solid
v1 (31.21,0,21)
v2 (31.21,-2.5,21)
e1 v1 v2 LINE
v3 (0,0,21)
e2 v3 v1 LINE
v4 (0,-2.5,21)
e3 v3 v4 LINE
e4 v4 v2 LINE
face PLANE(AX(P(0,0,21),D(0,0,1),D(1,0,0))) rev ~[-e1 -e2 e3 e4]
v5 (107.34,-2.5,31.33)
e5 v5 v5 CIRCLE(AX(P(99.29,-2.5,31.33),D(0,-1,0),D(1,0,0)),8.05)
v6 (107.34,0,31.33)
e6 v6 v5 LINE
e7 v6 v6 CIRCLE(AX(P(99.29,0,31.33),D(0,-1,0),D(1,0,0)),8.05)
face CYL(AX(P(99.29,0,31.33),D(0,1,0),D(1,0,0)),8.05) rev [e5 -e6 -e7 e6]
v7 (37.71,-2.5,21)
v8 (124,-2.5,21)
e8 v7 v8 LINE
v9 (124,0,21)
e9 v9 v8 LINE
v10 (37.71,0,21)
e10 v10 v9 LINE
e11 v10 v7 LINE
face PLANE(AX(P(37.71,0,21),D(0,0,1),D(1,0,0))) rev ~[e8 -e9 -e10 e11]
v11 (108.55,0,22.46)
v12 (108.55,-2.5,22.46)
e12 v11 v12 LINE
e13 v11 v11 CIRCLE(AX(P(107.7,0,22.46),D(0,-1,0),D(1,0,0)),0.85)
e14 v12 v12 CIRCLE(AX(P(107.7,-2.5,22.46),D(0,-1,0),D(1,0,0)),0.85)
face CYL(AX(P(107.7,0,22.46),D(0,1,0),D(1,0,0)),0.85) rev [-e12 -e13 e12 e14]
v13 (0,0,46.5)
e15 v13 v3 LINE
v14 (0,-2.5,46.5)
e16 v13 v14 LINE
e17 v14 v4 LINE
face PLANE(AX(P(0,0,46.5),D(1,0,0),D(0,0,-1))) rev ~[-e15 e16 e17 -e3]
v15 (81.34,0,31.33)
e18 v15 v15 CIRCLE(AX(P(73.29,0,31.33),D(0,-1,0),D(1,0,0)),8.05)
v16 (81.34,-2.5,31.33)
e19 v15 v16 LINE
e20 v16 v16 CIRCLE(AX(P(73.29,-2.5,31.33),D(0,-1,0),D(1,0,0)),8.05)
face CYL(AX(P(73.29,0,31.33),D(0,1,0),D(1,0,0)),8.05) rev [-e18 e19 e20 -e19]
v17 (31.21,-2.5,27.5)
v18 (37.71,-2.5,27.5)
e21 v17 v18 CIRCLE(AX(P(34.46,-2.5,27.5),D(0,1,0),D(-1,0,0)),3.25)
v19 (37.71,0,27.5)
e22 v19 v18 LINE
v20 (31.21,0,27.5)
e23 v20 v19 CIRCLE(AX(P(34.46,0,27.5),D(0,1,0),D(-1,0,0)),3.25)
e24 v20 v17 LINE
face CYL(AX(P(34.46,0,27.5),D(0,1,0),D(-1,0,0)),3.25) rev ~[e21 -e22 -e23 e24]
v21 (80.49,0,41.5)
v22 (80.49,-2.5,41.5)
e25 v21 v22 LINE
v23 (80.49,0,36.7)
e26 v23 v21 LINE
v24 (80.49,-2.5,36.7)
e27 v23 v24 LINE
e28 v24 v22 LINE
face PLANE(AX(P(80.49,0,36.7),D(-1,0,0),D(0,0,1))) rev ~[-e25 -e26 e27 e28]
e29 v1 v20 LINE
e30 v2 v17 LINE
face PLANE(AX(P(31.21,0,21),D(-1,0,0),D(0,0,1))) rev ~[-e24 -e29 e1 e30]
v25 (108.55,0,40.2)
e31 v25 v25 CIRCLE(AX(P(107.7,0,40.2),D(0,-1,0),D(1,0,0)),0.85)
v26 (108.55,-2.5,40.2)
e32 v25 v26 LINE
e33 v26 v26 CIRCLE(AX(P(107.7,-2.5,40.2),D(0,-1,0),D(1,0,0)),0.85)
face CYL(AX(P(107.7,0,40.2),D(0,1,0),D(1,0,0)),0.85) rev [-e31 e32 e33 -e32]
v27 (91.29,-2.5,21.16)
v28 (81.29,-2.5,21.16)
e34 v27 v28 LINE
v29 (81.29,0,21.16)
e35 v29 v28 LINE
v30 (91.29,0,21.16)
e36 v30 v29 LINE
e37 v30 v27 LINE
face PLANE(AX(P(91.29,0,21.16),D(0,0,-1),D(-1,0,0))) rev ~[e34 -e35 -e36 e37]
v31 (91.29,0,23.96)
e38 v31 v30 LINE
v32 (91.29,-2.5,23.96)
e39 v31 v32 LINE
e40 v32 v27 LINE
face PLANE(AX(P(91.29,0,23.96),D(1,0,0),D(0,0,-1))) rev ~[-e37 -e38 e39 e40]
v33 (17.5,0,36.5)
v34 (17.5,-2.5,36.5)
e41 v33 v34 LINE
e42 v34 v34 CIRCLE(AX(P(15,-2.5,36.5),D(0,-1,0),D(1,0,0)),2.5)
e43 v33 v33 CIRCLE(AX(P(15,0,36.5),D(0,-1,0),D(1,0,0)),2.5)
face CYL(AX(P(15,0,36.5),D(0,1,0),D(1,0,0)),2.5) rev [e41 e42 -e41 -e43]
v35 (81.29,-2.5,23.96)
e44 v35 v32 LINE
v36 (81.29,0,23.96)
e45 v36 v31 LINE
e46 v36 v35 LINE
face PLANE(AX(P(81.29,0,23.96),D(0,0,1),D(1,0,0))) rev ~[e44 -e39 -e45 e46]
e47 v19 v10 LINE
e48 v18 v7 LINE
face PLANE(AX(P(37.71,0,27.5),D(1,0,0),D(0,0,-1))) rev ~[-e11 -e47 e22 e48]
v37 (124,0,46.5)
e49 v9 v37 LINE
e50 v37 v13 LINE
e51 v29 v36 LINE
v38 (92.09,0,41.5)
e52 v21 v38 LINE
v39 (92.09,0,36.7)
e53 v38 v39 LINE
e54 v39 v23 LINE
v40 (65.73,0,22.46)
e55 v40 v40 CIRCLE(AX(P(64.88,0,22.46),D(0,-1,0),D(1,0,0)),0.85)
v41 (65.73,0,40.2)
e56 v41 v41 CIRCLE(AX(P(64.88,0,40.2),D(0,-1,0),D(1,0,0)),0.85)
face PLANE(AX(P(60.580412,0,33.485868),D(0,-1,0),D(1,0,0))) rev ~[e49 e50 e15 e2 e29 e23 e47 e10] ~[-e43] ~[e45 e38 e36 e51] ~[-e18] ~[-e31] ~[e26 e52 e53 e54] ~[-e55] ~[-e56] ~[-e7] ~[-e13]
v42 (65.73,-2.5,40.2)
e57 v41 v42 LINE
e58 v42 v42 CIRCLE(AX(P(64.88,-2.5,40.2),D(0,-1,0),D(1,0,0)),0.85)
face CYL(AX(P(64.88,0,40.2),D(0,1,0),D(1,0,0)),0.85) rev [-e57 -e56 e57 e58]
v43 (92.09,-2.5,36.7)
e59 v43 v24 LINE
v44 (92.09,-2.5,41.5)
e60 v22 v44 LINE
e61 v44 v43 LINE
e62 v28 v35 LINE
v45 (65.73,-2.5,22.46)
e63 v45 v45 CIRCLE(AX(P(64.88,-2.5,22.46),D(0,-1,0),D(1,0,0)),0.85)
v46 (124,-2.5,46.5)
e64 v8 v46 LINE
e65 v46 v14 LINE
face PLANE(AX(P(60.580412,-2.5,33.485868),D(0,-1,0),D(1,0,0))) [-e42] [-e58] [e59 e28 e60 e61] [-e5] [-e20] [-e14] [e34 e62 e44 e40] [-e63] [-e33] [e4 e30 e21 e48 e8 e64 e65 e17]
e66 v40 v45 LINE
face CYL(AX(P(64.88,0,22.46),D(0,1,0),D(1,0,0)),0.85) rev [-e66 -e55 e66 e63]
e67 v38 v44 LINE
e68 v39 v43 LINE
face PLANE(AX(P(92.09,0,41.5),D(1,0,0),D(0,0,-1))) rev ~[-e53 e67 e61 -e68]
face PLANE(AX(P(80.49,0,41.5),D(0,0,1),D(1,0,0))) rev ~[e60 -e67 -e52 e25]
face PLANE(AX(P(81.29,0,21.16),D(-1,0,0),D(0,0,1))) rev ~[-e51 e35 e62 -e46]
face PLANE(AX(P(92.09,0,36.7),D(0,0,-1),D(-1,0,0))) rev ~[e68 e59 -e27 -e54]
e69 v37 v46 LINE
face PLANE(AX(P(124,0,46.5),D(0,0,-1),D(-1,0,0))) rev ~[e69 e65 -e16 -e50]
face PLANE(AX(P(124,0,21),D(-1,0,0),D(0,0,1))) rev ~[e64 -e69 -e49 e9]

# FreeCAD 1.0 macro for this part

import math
import FreeCAD as App
import Part
import Sketcher
from FreeCAD import Vector


def add_polygon(sketch, points):
    """Adds a closed chain of lines whose ends are joined by coincident constraints."""
    first, n = sketch.GeometryCount, len(points)
    for a, b in zip(points, points[1:] + points[:1]):
        sketch.addGeometry(Part.LineSegment(App.Vector(*a, 0), App.Vector(*b, 0)), False)
    for i in range(n):
        sketch.addConstraint(Sketcher.Constraint("Coincident", first + i, 2, first + (i + 1) % n, 1))

doc = App.newDocument("Part")
body = doc.addObject("PartDesign::Body", "Body")

# Sketch on XZ plane
sketch1 = body.newObject("Sketcher::SketchObject", "Sketch")
sketch1.AttachmentSupport = (doc.getObject("XZ_Plane"), [""])
sketch1.MapMode = "FlatFace"
sketch1.addGeometry(Part.LineSegment(Vector(0, 46.5, 0), Vector(0, 21, 0)), False)  # 0
sketch1.addGeometry(Part.LineSegment(Vector(0, 21, 0), Vector(31.2, 21, 0)), False)  # 1
sketch1.addGeometry(Part.LineSegment(Vector(31.2, 21, 0), Vector(31.2, 27.5, 0)), False)  # 2
sketch1.addGeometry(Part.ArcOfCircle(Part.Circle(Vector(34.5, 27.5, 0), Vector(0, 0, 1), 3.2), math.radians(0), math.radians(180)), False)  # 3
sketch1.addGeometry(Part.LineSegment(Vector(37.7, 27.5, 0), Vector(37.7, 21, 0)), False)  # 4
sketch1.addGeometry(Part.LineSegment(Vector(37.7, 21, 0), Vector(124, 21, 0)), False)  # 5
sketch1.addGeometry(Part.LineSegment(Vector(124, 21, 0), Vector(124, 46.5, 0)), False)  # 6
sketch1.addGeometry(Part.LineSegment(Vector(124, 46.5, 0), Vector(0, 46.5, 0)), False)  # 7
sketch1.addGeometry(Part.Circle(Vector(64.9, 22.5, 0), Vector(0, 0, 1), 0.8), False)  # 8
add_polygon(sketch1, [(91.3, 21.2), (81.3, 21.2), (81.3, 24), (91.3, 24)])  # lines 9-12
sketch1.addGeometry(Part.Circle(Vector(107.7, 22.5, 0), Vector(0, 0, 1), 0.8), False)  # 13
sketch1.addGeometry(Part.Circle(Vector(73.3, 31.3, 0), Vector(0, 0, 1), 8.1), False)  # 14
sketch1.addGeometry(Part.Circle(Vector(99.3, 31.3, 0), Vector(0, 0, 1), 8.1), False)  # 15
sketch1.addGeometry(Part.Circle(Vector(15, 36.5, 0), Vector(0, 0, 1), 2.5), False)  # 16
sketch1.addGeometry(Part.Circle(Vector(64.9, 40.2, 0), Vector(0, 0, 1), 0.8), False)  # 17
add_polygon(sketch1, [(92.1, 36.7), (80.5, 36.7), (80.5, 41.5), (92.1, 41.5)])  # lines 18-21
sketch1.addGeometry(Part.Circle(Vector(107.7, 40.2, 0), Vector(0, 0, 1), 0.8), False)  # 22
sketch1.addConstraint([
    Sketcher.Constraint("Coincident", 0, 2, 1, 1),
    Sketcher.Constraint("Coincident", 1, 2, 2, 1),
    Sketcher.Constraint("Tangent", 2, 2, 3, 2),
    Sketcher.Constraint("Tangent", 3, 1, 4, 1),
    Sketcher.Constraint("Coincident", 4, 2, 5, 1),
    Sketcher.Constraint("Coincident", 5, 2, 6, 1),
    Sketcher.Constraint("Coincident", 6, 2, 7, 1),
    Sketcher.Constraint("Coincident", 7, 2, 0, 1),
    Sketcher.Constraint("Vertical", 0),
    Sketcher.Constraint("Horizontal", 1),
    Sketcher.Constraint("Vertical", 2),
    Sketcher.Constraint("Vertical", 4),
    Sketcher.Constraint("Horizontal", 5),
    Sketcher.Constraint("Vertical", 6),
    Sketcher.Constraint("Horizontal", 7),
    Sketcher.Constraint("Horizontal", 9),
    Sketcher.Constraint("Vertical", 10),
    Sketcher.Constraint("Horizontal", 11),
    Sketcher.Constraint("Vertical", 12),
    Sketcher.Constraint("Horizontal", 18),
    Sketcher.Constraint("Vertical", 19),
    Sketcher.Constraint("Horizontal", 20),
    Sketcher.Constraint("Vertical", 21),
    Sketcher.Constraint("Equal", 8, 13),
    Sketcher.Constraint("Equal", 14, 15),
    Sketcher.Constraint("Equal", 13, 17),
    Sketcher.Constraint("Equal", 17, 22),
    Sketcher.Constraint("PointOnObject", 0, 2, -2),
    Sketcher.Constraint("Horizontal", 8, 3, 13, 3),
    Sketcher.Constraint("Horizontal", 14, 3, 15, 3),
    Sketcher.Constraint("Horizontal", 17, 3, 22, 3),
    Sketcher.Constraint("Horizontal", 1, 2, 4, 2),
    Sketcher.Constraint("Vertical", 8, 3, 17, 3),
    Sketcher.Constraint("Vertical", 13, 3, 22, 3),
    Sketcher.Constraint("Diameter", 16, 5.0),
    Sketcher.Constraint("Diameter", 8, 1.7),
    Sketcher.Constraint("Diameter", 14, 16.1),
    Sketcher.Constraint("DistanceX", 7, 2, 7, 1, 124.0),
    Sketcher.Constraint("DistanceX", 9, 2, 9, 1, 10.0),
    Sketcher.Constraint("Radius", 3, 3.25),
    Sketcher.Constraint("DistanceX", 18, 2, 18, 1, 11.6),
    Sketcher.Constraint("DistanceY", 0, 2, 0, 1, 25.5),
    Sketcher.Constraint("DistanceY", 2, 1, 2, 2, 6.5),
    Sketcher.Constraint("DistanceY", 10, 1, 10, 2, 2.8),
    Sketcher.Constraint("DistanceY", 19, 1, 19, 2, 4.8),
    Sketcher.Constraint("DistanceX", -1, 1, 16, 3, 15.0),
    Sketcher.Constraint("DistanceY", -1, 1, 0, 2, 21.0),
    Sketcher.Constraint("DistanceX", 14, 3, 15, 3, 26.0),
    Sketcher.Constraint("DistanceY", 3, 3, 16, 3, 9.0),
    Sketcher.Constraint("DistanceX", 14, 3, 9, 2, 8.0),
    Sketcher.Constraint("DistanceX", 1, 1, 1, 2, 31.21),
    Sketcher.Constraint("DistanceX", -1, 1, 13, 3, 107.7),
    Sketcher.Constraint("DistanceY", -1, 1, 17, 3, 40.2),
    Sketcher.Constraint("DistanceY", -1, 1, 18, 2, 36.7),
    Sketcher.Constraint("DistanceY", 9, 2, 8, 3, 1.3),
    Sketcher.Constraint("DistanceX", 14, 3, 18, 2, 7.2),
    Sketcher.Constraint("DistanceX", -1, 1, 8, 3, 64.88),
    Sketcher.Constraint("DistanceY", -1, 1, 8, 3, 22.46),
    Sketcher.Constraint("DistanceX", -1, 1, 14, 3, 73.29),
    Sketcher.Constraint("DistanceY", -1, 1, 14, 3, 31.33),
])
pad1 = body.newObject("PartDesign::Pad", "Pad")
pad1.Profile = sketch1
pad1.Length = 2.5

doc.recompute()
